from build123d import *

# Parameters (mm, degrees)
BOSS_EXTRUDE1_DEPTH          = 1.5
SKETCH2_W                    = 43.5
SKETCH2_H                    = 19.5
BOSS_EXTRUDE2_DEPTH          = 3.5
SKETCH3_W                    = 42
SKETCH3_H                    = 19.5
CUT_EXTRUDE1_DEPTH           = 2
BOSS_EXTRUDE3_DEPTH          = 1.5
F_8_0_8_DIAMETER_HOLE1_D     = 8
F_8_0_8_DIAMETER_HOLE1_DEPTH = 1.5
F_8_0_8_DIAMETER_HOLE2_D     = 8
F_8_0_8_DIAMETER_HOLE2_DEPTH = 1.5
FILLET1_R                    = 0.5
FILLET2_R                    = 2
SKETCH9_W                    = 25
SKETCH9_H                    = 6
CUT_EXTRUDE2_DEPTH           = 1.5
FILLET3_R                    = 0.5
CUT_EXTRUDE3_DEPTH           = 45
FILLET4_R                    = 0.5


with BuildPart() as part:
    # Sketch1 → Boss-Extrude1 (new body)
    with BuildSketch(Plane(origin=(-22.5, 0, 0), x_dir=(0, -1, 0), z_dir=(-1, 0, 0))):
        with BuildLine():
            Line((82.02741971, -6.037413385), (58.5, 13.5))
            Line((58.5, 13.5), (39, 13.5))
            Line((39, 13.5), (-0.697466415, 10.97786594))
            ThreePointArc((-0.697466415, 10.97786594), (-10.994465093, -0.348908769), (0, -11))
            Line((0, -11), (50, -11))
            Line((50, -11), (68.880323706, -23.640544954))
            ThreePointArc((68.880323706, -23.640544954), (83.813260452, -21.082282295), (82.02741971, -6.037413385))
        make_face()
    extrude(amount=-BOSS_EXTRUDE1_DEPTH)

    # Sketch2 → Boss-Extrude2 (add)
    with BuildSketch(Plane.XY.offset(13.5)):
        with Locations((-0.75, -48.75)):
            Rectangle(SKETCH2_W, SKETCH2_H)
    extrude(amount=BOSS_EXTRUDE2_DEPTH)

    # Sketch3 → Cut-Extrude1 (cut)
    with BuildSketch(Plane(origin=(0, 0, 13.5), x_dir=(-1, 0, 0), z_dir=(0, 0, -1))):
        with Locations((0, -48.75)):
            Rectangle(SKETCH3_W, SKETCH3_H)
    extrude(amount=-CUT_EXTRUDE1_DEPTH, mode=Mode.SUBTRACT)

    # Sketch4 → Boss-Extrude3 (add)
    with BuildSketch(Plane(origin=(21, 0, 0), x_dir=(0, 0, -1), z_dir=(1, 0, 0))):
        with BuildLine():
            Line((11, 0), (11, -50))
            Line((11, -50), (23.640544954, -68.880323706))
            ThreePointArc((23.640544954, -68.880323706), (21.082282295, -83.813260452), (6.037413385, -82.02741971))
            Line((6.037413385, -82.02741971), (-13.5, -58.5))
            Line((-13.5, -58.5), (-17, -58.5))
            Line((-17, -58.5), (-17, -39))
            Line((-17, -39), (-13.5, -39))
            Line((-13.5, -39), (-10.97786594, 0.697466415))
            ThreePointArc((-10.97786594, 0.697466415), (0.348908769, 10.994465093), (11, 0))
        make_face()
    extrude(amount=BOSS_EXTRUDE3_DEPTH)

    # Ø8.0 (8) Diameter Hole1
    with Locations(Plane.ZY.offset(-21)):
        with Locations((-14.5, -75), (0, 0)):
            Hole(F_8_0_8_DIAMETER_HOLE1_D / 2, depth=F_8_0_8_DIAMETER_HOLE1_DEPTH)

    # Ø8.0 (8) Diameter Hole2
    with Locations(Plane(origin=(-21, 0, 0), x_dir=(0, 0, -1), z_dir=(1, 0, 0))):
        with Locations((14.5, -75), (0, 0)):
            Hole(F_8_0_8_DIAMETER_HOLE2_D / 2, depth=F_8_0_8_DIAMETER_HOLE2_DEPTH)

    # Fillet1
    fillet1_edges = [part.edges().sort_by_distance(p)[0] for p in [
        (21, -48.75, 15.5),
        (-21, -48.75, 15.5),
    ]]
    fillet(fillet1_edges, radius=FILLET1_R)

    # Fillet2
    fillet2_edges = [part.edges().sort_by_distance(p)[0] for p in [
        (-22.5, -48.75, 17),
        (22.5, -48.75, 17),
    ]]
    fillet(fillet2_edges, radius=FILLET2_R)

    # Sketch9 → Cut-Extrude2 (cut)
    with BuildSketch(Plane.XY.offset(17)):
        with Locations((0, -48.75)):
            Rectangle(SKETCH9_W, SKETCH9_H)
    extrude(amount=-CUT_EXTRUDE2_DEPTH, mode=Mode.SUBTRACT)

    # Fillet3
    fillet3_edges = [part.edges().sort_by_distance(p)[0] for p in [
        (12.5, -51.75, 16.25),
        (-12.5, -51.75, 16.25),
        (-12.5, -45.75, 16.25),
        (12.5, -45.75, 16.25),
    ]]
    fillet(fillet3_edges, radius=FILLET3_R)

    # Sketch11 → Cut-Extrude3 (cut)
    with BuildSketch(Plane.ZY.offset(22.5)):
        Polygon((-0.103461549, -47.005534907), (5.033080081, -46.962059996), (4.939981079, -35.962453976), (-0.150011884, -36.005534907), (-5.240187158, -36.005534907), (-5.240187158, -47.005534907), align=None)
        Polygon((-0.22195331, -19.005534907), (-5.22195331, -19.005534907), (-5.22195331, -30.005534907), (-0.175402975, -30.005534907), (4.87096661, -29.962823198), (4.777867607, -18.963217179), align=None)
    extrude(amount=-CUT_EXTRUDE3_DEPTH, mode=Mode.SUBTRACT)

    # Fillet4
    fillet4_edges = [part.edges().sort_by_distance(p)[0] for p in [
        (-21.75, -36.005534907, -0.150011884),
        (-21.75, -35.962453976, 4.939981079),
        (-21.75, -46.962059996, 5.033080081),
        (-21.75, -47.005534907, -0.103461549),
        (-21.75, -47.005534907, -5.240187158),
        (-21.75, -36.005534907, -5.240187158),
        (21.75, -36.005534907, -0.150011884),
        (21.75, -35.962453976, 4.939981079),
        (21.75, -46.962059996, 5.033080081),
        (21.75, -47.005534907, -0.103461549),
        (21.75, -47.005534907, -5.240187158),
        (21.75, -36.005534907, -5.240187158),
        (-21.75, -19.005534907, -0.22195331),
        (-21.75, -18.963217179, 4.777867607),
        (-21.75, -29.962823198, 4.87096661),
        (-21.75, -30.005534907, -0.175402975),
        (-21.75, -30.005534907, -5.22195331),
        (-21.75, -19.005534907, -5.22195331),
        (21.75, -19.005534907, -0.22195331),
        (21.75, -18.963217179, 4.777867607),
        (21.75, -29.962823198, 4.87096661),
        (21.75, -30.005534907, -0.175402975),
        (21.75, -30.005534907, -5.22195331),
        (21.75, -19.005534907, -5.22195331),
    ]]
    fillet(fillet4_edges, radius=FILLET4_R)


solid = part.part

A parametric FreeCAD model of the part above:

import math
import FreeCAD as App
import Part
import Sketcher
from FreeCAD import Vector
Q = App.Units.Quantity


def edges_at(feature, points):
    """Names of the edges that pass closest to the given points."""
    edges = feature.Shape.Edges
    near = lambda p: min(range(len(edges)), key=lambda i: edges[i].distToShape(Part.Vertex(*p))[0])
    return sorted({f"Edge{near(p) + 1}" for p in points})


def add_polygon(sketch, points):
    """Adds a closed chain of lines whose ends are joined by coincident constraints."""
    first, n = sketch.GeometryCount, len(points)
    for a, b in zip(points, points[1:] + points[:1]):
        sketch.addGeometry(Part.LineSegment(App.Vector(*a, 0), App.Vector(*b, 0)), False)
    for i in range(n):
        sketch.addConstraint(Sketcher.Constraint("Coincident", first + i, 2, first + (i + 1) % n, 1))

doc = App.newDocument("Part")
body = doc.addObject("PartDesign::Body", "Body")

# Sketch on YZ plane
sketch1 = doc.addObject("Sketcher::SketchObject", "Sketch")
body.addObject(sketch1)
sketch1.AttachmentSupport = (doc.YZ_Plane, [""])
sketch1.MapMode = "FlatFace"
sketch1.AttachmentOffset = App.Placement(Vector(0, 0, -22.5), App.Rotation())
sketch1.addGeometry(Part.LineSegment(Vector(-82, -6, 0), Vector(-58, 14, 0)), False)
sketch1.addGeometry(Part.LineSegment(Vector(-58, 14, 0), Vector(-39, 14, 0)), False)
sketch1.addGeometry(Part.LineSegment(Vector(-39, 14, 0), Vector(1, 11, 0)), False)
sketch1.addGeometry(Part.ArcOfCircle(Part.Circle(Vector(0, 0, 0), Vector(0, 0, 1), 11), math.radians(-90), math.radians(86)), False)
sketch1.addGeometry(Part.LineSegment(Vector(0, -11, 0), Vector(-50, -11, 0)), False)
sketch1.addGeometry(Part.LineSegment(Vector(-50, -11, 0), Vector(-69, -24, 0)), False)
sketch1.addGeometry(Part.ArcOfCircle(Part.Circle(Vector(-75, -14, 0), Vector(0, 0, 1), 11), math.radians(130), math.radians(304)), False)
sketch1.addConstraint(Sketcher.Constraint("Coincident", 0, 2, 1, 1))
sketch1.addConstraint(Sketcher.Constraint("Coincident", 1, 2, 2, 1))
sketch1.addConstraint(Sketcher.Constraint("Tangent", 2, 2, 3, 2))
sketch1.addConstraint(Sketcher.Constraint("Tangent", 3, 1, 4, 1))
sketch1.addConstraint(Sketcher.Constraint("Coincident", 4, 2, 5, 1))
sketch1.addConstraint(Sketcher.Constraint("Tangent", 5, 2, 6, 2))
sketch1.addConstraint(Sketcher.Constraint("Tangent", 6, 1, 0, 1))
sketch1.addConstraint(Sketcher.Constraint("Horizontal", 1))
sketch1.addConstraint(Sketcher.Constraint("Horizontal", 4))
sketch1.addConstraint(Sketcher.Constraint("Coincident", 3, 3, -1, 1))
sketch1.addConstraint(Sketcher.Constraint("Equal", 3, 6))
sketch1.addConstraint(Sketcher.Constraint("Radius", 3, Q("11 mm")))
sketch1.addConstraint(Sketcher.Constraint("DistanceX", 4, 2, 4, 1, Q("50 mm")))
sketch1.addConstraint(Sketcher.Constraint("DistanceX", 1, 1, 1, 2, Q("19.5 mm")))
sketch1.addConstraint(Sketcher.Constraint("DistanceX", 6, 3, -1, 1, Q("75 mm")))
sketch1.addConstraint(Sketcher.Constraint("DistanceX", 1, 2, -1, 1, Q("39 mm")))
sketch1.addConstraint(Sketcher.Constraint("DistanceY", 6, 3, 0, 2, Q("28 mm")))
sketch1.addConstraint(Sketcher.Constraint("DistanceY", 6, 3, -1, 1, Q("14.5 mm")))
pad1 = doc.addObject("PartDesign::Pad", "Pad")
body.addObject(pad1)
pad1.Profile = sketch1
pad1.Length = 1.5

# Sketch on XY plane
sketch2 = doc.addObject("Sketcher::SketchObject", "Sketch001")
body.addObject(sketch2)
sketch2.AttachmentSupport = (doc.XY_Plane, [""])
sketch2.MapMode = "FlatFace"
sketch2.AttachmentOffset = App.Placement(Vector(0, 0, 13.5), App.Rotation())
add_polygon(sketch2, [(-22, -39), (-22, -58), (21, -58), (21, -39)])  # lines 0-3
sketch2.addConstraint(Sketcher.Constraint("Vertical", 0))
sketch2.addConstraint(Sketcher.Constraint("Horizontal", 1))
sketch2.addConstraint(Sketcher.Constraint("Vertical", 2))
sketch2.addConstraint(Sketcher.Constraint("Horizontal", 3))
sketch2.addConstraint(Sketcher.Constraint("DistanceX", 1, 1, 1, 2, Q("43.5 mm")))
sketch2.addConstraint(Sketcher.Constraint("DistanceY", 0, 2, 0, 1, Q("19.5 mm")))
sketch2.addConstraint(Sketcher.Constraint("DistanceX", -1, 1, 1, 2, Q("21 mm")))
sketch2.addConstraint(Sketcher.Constraint("DistanceY", 2, 2, -1, 1, Q("39 mm")))
pad2 = doc.addObject("PartDesign::Pad", "Pad001")
body.addObject(pad2)
pad2.Profile = sketch2
pad2.Length = 3.5

# Sketch on XY plane
sketch3 = doc.addObject("Sketcher::SketchObject", "Sketch002")
body.addObject(sketch3)
sketch3.AttachmentSupport = (doc.XY_Plane, [""])
sketch3.MapMode = "FlatFace"
sketch3.AttachmentOffset = App.Placement(Vector(0, 0, 13.5), App.Rotation())
add_polygon(sketch3, [(21, -39), (21, -58), (-21, -58), (-21, -39)])  # lines 0-3
sketch3.addConstraint(Sketcher.Constraint("Vertical", 0))
sketch3.addConstraint(Sketcher.Constraint("Horizontal", 1))
sketch3.addConstraint(Sketcher.Constraint("Vertical", 2))
sketch3.addConstraint(Sketcher.Constraint("Horizontal", 3))
sketch3.addConstraint(Sketcher.Constraint("DistanceX", 1, 2, 1, 1, Q("42 mm")))
sketch3.addConstraint(Sketcher.Constraint("DistanceY", 0, 2, 0, 1, Q("19.5 mm")))
sketch3.addConstraint(Sketcher.Constraint("DistanceX", -1, 1, 0, 2, Q("21 mm")))
sketch3.addConstraint(Sketcher.Constraint("DistanceY", 2, 2, -1, 1, Q("39 mm")))
pocket1 = doc.addObject("PartDesign::Pocket", "Pocket")
body.addObject(pocket1)
pocket1.Profile = sketch3
pocket1.Length = 2
pocket1.Reversed = True

# Sketch on YZ plane
sketch4 = doc.addObject("Sketcher::SketchObject", "Sketch003")
body.addObject(sketch4)
sketch4.AttachmentSupport = (doc.YZ_Plane, [""])
sketch4.MapMode = "FlatFace"
sketch4.AttachmentOffset = App.Placement(Vector(0, 0, 21), App.Rotation())
sketch4.addGeometry(Part.LineSegment(Vector(-50, -11, 0), Vector(0, -11, 0)), False)
sketch4.addGeometry(Part.ArcOfCircle(Part.Circle(Vector(0, 0, 0), Vector(0, 0, 1), 11), math.radians(-90), math.radians(86)), False)
sketch4.addGeometry(Part.LineSegment(Vector(0.7, 11, 0), Vector(-39, 13.5, 0)), False)
sketch4.addGeometry(Part.LineSegment(Vector(-39, 13.5, 0), Vector(-39, 17, 0)), False)
sketch4.addGeometry(Part.LineSegment(Vector(-39, 17, 0), Vector(-58.5, 17, 0)), False)
sketch4.addGeometry(Part.LineSegment(Vector(-58.5, 17, 0), Vector(-58.5, 13.5, 0)), False)
sketch4.addGeometry(Part.LineSegment(Vector(-58.5, 13.5, 0), Vector(-82, -6, 0)), False)
sketch4.addGeometry(Part.ArcOfCircle(Part.Circle(Vector(-75, -14.5, 0), Vector(0, 0, 1), 11), math.radians(130), math.radians(304)), False)
sketch4.addGeometry(Part.LineSegment(Vector(-68.9, -23.6, 0), Vector(-50, -11, 0)), False)
sketch4.addConstraint(Sketcher.Constraint("Tangent", 0, 2, 1, 1))
sketch4.addConstraint(Sketcher.Constraint("Tangent", 1, 2, 2, 1))
sketch4.addConstraint(Sketcher.Constraint("Coincident", 2, 2, 3, 1))
sketch4.addConstraint(Sketcher.Constraint("Coincident", 3, 2, 4, 1))
sketch4.addConstraint(Sketcher.Constraint("Coincident", 4, 2, 5, 1))
sketch4.addConstraint(Sketcher.Constraint("Coincident", 5, 2, 6, 1))
sketch4.addConstraint(Sketcher.Constraint("Tangent", 6, 2, 7, 1))
sketch4.addConstraint(Sketcher.Constraint("Tangent", 7, 2, 8, 1))
sketch4.addConstraint(Sketcher.Constraint("Coincident", 8, 2, 0, 1))
sketch4.addConstraint(Sketcher.Constraint("Horizontal", 0))
sketch4.addConstraint(Sketcher.Constraint("Vertical", 3))
sketch4.addConstraint(Sketcher.Constraint("Horizontal", 4))
sketch4.addConstraint(Sketcher.Constraint("Vertical", 5))
sketch4.addConstraint(Sketcher.Constraint("Coincident", 1, 3, -1, 1))
sketch4.addConstraint(Sketcher.Constraint("Equal", 1, 7))
sketch4.addConstraint(Sketcher.Constraint("Horizontal", 2, 2, 5, 2))
sketch4.addConstraint(Sketcher.Constraint("Radius", 1, Q("11 mm")))
sketch4.addConstraint(Sketcher.Constraint("DistanceX", 0, 1, 0, 2, Q("50 mm")))
sketch4.addConstraint(Sketcher.Constraint("DistanceX", 4, 2, 4, 1, Q("19.5 mm")))
sketch4.addConstraint(Sketcher.Constraint("DistanceY", 3, 1, 3, 2, Q("3.5 mm")))
sketch4.addConstraint(Sketcher.Constraint("DistanceX", 7, 3, -1, 1, Q("75 mm")))
sketch4.addConstraint(Sketcher.Constraint("DistanceX", 2, 2, -1, 1, Q("39 mm")))
sketch4.addConstraint(Sketcher.Constraint("DistanceY", -1, 1, 3, 2, Q("17 mm")))
sketch4.addConstraint(Sketcher.Constraint("DistanceY", 7, 3, 2, 2, Q("28 mm")))
pad3 = doc.addObject("PartDesign::Pad", "Pad002")
body.addObject(pad3)
pad3.Profile = sketch4
pad3.Length = 1.5

# Sketch on YZ plane
sketch5 = doc.addObject("Sketcher::SketchObject", "Sketch004")
body.addObject(sketch5)
sketch5.AttachmentSupport = (doc.YZ_Plane, [""])
sketch5.MapMode = "FlatFace"
sketch5.AttachmentOffset = App.Placement(Vector(0, 0, 21), App.Rotation())
sketch5.addGeometry(Part.Circle(Vector(-75, -14.5, 0), Vector(0, 0, 1), 4), False)
sketch5.addGeometry(Part.Circle(Vector(0, 0, 0), Vector(0, 0, 1), 4), False)
sketch5.addConstraint(Sketcher.Constraint("Coincident", 1, 3, -1, 1))
sketch5.addConstraint(Sketcher.Constraint("Equal", 0, 1))
sketch5.addConstraint(Sketcher.Constraint("Diameter", 0, Q("8 mm")))
sketch5.addConstraint(Sketcher.Constraint("DistanceX", 0, 3, -1, 1, Q("75 mm")))
sketch5.addConstraint(Sketcher.Constraint("DistanceY", 0, 3, -1, 1, Q("14.5 mm")))
doc.recompute()
hole = doc.addObject("PartDesign::Hole", "Hole")
body.addObject(hole)
hole.Profile = sketch5
hole.ThreadType = "None"
hole.Diameter = 8
hole.DepthType = "Dimension"
hole.Depth = 1.5
hole.DrillPoint = "Flat"
hole.Reversed = True

# Sketch on YZ plane
sketch6 = doc.addObject("Sketcher::SketchObject", "Sketch005")
body.addObject(sketch6)
sketch6.AttachmentSupport = (doc.YZ_Plane, [""])
sketch6.MapMode = "FlatFace"
sketch6.AttachmentOffset = App.Placement(Vector(0, 0, -21), App.Rotation())
sketch6.addGeometry(Part.Circle(Vector(-75, -14.5, 0), Vector(0, 0, 1), 4), False)
sketch6.addGeometry(Part.Circle(Vector(0, 0, 0), Vector(0, 0, 1), 4), False)
sketch6.addConstraint(Sketcher.Constraint("Coincident", 1, 3, -1, 1))
sketch6.addConstraint(Sketcher.Constraint("Equal", 0, 1))
sketch6.addConstraint(Sketcher.Constraint("Diameter", 0, Q("8 mm")))
sketch6.addConstraint(Sketcher.Constraint("DistanceX", 0, 3, -1, 1, Q("75 mm")))
sketch6.addConstraint(Sketcher.Constraint("DistanceY", 0, 3, -1, 1, Q("14.5 mm")))
doc.recompute()
hole2 = doc.addObject("PartDesign::Hole", "Hole001")
body.addObject(hole2)
hole2.Profile = sketch6
hole2.ThreadType = "None"
hole2.Diameter = 8
hole2.DepthType = "Dimension"
hole2.Depth = 1.5
hole2.DrillPoint = "Flat"
doc.recompute()

fillet = doc.addObject("PartDesign::Fillet", "Fillet")
body.addObject(fillet)
fillet.Base = (hole2, edges_at(hole2, [(21, -48.75, 15.5), (-21, -48.75, 15.5)]))
fillet.Radius = 0.5
doc.recompute()

fillet2 = doc.addObject("PartDesign::Fillet", "Fillet001")
body.addObject(fillet2)
fillet2.Base = (fillet, edges_at(fillet, [(-22.5, -48.75, 17), (22.5, -48.75, 17)]))
fillet2.Radius = 2

# Sketch on XY plane
sketch7 = doc.addObject("Sketcher::SketchObject", "Sketch006")
body.addObject(sketch7)
sketch7.AttachmentSupport = (doc.XY_Plane, [""])
sketch7.MapMode = "FlatFace"
sketch7.AttachmentOffset = App.Placement(Vector(0, 0, 17), App.Rotation())
add_polygon(sketch7, [(-12, -46), (-12, -52), (12, -52), (12, -46)])  # lines 0-3
sketch7.addConstraint(Sketcher.Constraint("Vertical", 0))
sketch7.addConstraint(Sketcher.Constraint("Horizontal", 1))
sketch7.addConstraint(Sketcher.Constraint("Vertical", 2))
sketch7.addConstraint(Sketcher.Constraint("Horizontal", 3))
sketch7.addConstraint(Sketcher.Constraint("DistanceX", 1, 1, 1, 2, Q("25 mm")))
sketch7.addConstraint(Sketcher.Constraint("DistanceY", 0, 2, 0, 1, Q("6 mm")))
sketch7.addConstraint(Sketcher.Constraint("DistanceX", 0, 2, -1, 1, Q("12.5 mm")))
sketch7.addConstraint(Sketcher.Constraint("DistanceY", 0, 2, -1, 1, Q("51.75 mm")))
pocket2 = doc.addObject("PartDesign::Pocket", "Pocket001")
body.addObject(pocket2)
pocket2.Profile = sketch7
pocket2.Length = 1.5
doc.recompute()

fillet3 = doc.addObject("PartDesign::Fillet", "Fillet002")
body.addObject(fillet3)
fillet3.Base = (pocket2, edges_at(pocket2, [
    (12.5, -51.75, 16.25),
    (-12.5, -51.75, 16.25),
    (-12.5, -45.75, 16.25),
    (12.5, -45.75, 16.25),
]))
fillet3.Radius = 0.5

# Sketch on YZ plane
sketch8 = doc.addObject("Sketcher::SketchObject", "Sketch007")
body.addObject(sketch8)
sketch8.AttachmentSupport = (doc.YZ_Plane, [""])
sketch8.MapMode = "FlatFace"
sketch8.AttachmentOffset = App.Placement(Vector(0, 0, -22.5), App.Rotation())
add_polygon(sketch8, [(-47.005535, -0.103462), (-46.96206, 5.03308), (-35.962454, 4.939981), (-36.005535, -0.150012), (-36.005535, -5.240187), (-47.005535, -5.240187)])  # lines 0-5
add_polygon(sketch8, [(-19.005535, -0.221953), (-19.005535, -5.221953), (-30.005535, -5.221953), (-30.005535, -0.175403), (-29.962823, 4.870967), (-18.963217, 4.777868)])  # lines 6-11
sketch8.addConstraint(Sketcher.Constraint("Vertical", 3))
sketch8.addConstraint(Sketcher.Constraint("Horizontal", 4))
sketch8.addConstraint(Sketcher.Constraint("Vertical", 5))
sketch8.addConstraint(Sketcher.Constraint("Vertical", 6))
sketch8.addConstraint(Sketcher.Constraint("Horizontal", 7))
sketch8.addConstraint(Sketcher.Constraint("Vertical", 8))
sketch8.addConstraint(Sketcher.Constraint("Perpendicular", 0, 1))
sketch8.addConstraint(Sketcher.Constraint("Perpendicular", 1, 2))
sketch8.addConstraint(Sketcher.Constraint("Parallel", 2, 9))
sketch8.addConstraint(Sketcher.Constraint("Perpendicular", 9, 10))
sketch8.addConstraint(Sketcher.Constraint("Perpendicular", 10, 11))
sketch8.addConstraint(Sketcher.Constraint("Equal", 4, 7))
sketch8.addConstraint(Sketcher.Constraint("Equal", 1, 10))
sketch8.addConstraint(Sketcher.Constraint("DistanceX", 4, 2, 4, 1, Q("11 mm")))
sketch8.addConstraint(Sketcher.Constraint("DistanceY", 6, 2, 6, 1, Q("5 mm")))
sketch8.addConstraint(Sketcher.Constraint("Distance", 1, Q("11 mm")))
sketch8.addConstraint(Sketcher.Constraint("Distance", 11, Q("5 mm")))
sketch8.addConstraint(Sketcher.Constraint("DistanceX", 3, 2, 6, 2, Q("17 mm")))
sketch8.addConstraint(Sketcher.Constraint("DistanceY", 8, 1, 8, 2, Q("5.04655 mm")))
sketch8.addConstraint(Sketcher.Constraint("DistanceY", 3, 2, 3, 1, Q("5.090175 mm")))
sketch8.addConstraint(Sketcher.Constraint("DistanceX", 0, 2, -1, 1, Q("46.96206 mm")))
sketch8.addConstraint(Sketcher.Constraint("DistanceY", -1, 1, 0, 2, Q("5.03308 mm")))
sketch8.addConstraint(Sketcher.Constraint("DistanceY", 2, 2, -1, 1, Q("0.150012 mm")))
sketch8.addConstraint(Sketcher.Constraint("DistanceY", 6, 2, 2, 2, Q("5.071941 mm")))
pocket3 = doc.addObject("PartDesign::Pocket", "Pocket002")
body.addObject(pocket3)
pocket3.Profile = sketch8
pocket3.Length = 45
pocket3.Reversed = True
doc.recompute()

fillet4 = doc.addObject("PartDesign::Fillet", "Fillet003")
body.addObject(fillet4)
fillet4.Base = (pocket3, edges_at(pocket3, [
    (-21.75, -36.006, -0.15),
    (-21.75, -35.962, 4.94),
    (-21.75, -46.962, 5.033),
    (-21.75, -47.006, -0.103),
    (-21.75, -47.006, -5.24),
    (-21.75, -36.006, -5.24),
    (21.75, -36.006, -0.15),
    (21.75, -35.962, 4.94),
    (21.75, -46.962, 5.033),
    (21.75, -47.006, -0.103),
    (21.75, -47.006, -5.24),
    (21.75, -36.006, -5.24),
    (-21.75, -19.006, -0.222),
    (-21.75, -18.963, 4.778),
    (-21.75, -29.963, 4.871),
    (-21.75, -30.006, -0.175),
    (-21.75, -30.006, -5.222),
    (-21.75, -19.006, -5.222),
    (21.75, -19.006, -0.222),
    (21.75, -18.963, 4.778),
    (21.75, -29.963, 4.871),
    (21.75, -30.006, -0.175),
    (21.75, -30.006, -5.222),
    (21.75, -19.006, -5.222),
]))
fillet4.Radius = 0.5

doc.recompute()
